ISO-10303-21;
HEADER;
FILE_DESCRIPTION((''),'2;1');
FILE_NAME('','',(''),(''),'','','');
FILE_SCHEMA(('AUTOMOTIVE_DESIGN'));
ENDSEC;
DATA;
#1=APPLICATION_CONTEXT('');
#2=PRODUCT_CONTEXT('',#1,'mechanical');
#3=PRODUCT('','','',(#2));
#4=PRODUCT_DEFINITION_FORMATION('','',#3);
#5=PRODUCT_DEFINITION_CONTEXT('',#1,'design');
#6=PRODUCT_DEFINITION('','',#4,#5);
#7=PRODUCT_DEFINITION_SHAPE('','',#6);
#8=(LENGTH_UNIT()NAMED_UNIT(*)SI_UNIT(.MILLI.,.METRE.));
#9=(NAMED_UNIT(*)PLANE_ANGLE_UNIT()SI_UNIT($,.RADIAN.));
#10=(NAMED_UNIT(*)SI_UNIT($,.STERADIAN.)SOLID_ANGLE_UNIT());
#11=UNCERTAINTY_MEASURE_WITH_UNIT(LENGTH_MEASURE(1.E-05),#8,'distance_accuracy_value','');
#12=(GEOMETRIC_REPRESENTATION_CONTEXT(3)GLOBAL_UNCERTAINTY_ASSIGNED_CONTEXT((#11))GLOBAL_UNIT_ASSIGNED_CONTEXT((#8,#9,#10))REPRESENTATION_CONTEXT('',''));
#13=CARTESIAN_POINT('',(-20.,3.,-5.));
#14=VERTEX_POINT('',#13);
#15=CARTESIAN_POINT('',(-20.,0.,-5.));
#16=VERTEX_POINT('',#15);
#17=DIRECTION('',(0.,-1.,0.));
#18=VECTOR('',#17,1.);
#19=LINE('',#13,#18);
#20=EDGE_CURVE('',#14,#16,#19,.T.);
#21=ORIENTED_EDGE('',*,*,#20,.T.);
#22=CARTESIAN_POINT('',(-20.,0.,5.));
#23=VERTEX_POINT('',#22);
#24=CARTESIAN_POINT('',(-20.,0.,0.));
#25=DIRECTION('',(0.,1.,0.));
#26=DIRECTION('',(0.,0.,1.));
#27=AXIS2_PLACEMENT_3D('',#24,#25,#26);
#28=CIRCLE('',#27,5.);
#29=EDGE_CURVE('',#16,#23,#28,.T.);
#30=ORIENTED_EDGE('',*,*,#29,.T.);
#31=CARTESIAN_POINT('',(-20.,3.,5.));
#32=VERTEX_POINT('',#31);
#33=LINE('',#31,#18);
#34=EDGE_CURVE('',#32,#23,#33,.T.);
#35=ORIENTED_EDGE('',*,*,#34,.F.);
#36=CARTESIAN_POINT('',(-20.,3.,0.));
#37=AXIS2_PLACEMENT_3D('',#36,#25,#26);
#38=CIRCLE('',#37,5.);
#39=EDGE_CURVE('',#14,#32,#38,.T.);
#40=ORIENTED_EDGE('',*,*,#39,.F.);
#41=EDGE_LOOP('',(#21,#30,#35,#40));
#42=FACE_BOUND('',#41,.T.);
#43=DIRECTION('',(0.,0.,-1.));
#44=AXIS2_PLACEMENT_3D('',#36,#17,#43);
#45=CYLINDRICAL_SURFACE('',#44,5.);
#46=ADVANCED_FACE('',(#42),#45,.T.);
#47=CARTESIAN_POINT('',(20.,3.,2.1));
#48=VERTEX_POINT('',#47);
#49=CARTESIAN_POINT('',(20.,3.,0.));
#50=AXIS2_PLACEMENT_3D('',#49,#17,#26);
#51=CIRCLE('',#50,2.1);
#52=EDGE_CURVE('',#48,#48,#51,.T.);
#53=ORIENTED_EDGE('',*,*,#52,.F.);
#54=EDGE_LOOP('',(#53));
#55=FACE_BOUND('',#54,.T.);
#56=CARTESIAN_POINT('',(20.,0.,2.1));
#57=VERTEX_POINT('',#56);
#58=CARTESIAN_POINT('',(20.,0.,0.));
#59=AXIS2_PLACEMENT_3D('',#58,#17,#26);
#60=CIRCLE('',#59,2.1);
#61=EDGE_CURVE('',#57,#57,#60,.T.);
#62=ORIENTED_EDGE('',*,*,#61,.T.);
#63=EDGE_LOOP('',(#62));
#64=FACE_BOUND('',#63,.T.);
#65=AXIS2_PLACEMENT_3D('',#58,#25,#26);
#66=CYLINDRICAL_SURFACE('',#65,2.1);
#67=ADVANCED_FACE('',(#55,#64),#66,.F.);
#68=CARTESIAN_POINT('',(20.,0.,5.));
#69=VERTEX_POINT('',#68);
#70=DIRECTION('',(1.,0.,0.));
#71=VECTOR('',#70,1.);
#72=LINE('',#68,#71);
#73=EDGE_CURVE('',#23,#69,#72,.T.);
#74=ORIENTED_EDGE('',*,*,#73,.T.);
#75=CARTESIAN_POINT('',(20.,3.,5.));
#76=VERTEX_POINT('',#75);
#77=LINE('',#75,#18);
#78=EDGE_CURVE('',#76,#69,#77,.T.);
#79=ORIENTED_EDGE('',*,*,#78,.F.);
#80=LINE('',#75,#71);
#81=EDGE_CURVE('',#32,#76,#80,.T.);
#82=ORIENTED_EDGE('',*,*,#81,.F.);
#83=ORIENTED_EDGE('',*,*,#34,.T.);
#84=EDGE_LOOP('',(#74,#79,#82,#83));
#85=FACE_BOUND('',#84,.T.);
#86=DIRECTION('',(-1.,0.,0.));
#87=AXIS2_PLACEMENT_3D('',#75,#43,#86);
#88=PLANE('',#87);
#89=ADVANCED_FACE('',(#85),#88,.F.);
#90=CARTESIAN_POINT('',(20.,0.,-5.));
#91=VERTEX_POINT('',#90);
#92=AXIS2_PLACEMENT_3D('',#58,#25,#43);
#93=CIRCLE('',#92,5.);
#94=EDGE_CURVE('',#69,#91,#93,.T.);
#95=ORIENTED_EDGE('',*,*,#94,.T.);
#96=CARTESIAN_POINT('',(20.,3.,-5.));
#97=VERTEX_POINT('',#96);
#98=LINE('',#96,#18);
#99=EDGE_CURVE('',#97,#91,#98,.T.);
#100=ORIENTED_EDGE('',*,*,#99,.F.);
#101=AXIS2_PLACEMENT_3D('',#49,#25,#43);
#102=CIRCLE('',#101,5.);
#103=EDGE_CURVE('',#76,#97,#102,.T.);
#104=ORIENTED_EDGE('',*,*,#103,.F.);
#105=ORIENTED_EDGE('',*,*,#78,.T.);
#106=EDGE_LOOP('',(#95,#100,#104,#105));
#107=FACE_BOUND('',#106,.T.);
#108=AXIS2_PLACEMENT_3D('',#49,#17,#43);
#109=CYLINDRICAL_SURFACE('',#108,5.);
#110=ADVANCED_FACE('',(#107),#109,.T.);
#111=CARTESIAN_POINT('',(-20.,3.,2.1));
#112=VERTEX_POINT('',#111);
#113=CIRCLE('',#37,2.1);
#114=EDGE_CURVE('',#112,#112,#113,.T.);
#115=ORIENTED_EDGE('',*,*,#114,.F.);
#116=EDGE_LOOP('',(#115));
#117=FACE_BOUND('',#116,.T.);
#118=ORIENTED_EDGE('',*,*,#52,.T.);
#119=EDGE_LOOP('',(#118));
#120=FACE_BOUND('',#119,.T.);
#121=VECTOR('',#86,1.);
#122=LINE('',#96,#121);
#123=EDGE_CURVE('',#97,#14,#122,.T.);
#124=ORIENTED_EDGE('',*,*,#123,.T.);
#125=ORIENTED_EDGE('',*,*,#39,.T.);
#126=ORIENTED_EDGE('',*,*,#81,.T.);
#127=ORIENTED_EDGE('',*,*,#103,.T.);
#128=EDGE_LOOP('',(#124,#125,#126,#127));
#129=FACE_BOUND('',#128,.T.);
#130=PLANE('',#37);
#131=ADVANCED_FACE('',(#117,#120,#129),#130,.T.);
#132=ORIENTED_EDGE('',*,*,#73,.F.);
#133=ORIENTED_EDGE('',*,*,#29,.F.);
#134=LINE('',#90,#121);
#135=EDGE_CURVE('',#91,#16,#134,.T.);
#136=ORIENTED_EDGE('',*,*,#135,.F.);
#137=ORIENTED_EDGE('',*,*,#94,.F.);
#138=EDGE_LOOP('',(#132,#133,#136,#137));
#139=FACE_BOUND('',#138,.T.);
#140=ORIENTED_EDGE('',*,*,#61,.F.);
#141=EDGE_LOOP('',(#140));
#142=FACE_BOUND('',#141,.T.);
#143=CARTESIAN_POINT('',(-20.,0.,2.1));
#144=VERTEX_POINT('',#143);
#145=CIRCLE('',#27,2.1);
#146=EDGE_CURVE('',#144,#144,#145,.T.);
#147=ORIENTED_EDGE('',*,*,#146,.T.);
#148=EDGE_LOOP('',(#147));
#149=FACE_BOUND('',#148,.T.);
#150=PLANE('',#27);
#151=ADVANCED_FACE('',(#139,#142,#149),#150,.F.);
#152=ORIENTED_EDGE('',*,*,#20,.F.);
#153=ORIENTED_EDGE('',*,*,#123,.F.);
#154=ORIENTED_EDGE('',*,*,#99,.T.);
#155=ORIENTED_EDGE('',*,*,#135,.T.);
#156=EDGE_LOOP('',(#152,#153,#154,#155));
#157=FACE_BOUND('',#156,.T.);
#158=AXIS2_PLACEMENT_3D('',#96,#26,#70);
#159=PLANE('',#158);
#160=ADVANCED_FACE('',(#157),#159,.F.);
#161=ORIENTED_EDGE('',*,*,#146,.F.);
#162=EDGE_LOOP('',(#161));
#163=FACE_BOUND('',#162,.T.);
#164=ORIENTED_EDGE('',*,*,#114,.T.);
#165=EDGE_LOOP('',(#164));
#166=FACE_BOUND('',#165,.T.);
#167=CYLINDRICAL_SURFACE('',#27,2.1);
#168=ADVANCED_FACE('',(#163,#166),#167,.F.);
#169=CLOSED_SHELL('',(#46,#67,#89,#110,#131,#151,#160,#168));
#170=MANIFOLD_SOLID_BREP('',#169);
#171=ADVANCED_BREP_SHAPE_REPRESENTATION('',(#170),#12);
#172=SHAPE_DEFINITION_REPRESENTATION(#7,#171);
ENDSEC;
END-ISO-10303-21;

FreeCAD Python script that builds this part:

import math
import FreeCAD as App
import Part
import Sketcher

doc = App.newDocument("Part")
body = doc.addObject("PartDesign::Body", "Body")

# Sketch on XZ plane
sketch1 = body.newObject("Sketcher::SketchObject", "Sketch")
sketch1.AttachmentSupport = (doc.getObject("XZ_Plane"), [""])
sketch1.MapMode = "FlatFace"
sketch1.addGeometry([
    Part.LineSegment(App.Vector(-20, 5, 0), App.Vector(20, 5, 0)),
    Part.ArcOfCircle(Part.Circle(App.Vector(20, 0, 0), App.Vector(0, 0, 1), 5), math.radians(-90), math.radians(90)),
    Part.LineSegment(App.Vector(20, -5, 0), App.Vector(-20, -5, 0)),
    Part.ArcOfCircle(Part.Circle(App.Vector(-20, 0, 0), App.Vector(0, 0, 1), 5), math.radians(90), math.radians(270)),
], False)
sketch1.addConstraint([
    Sketcher.Constraint("Tangent", 0, 2, 1, 2),
    Sketcher.Constraint("Tangent", 1, 1, 2, 1),
    Sketcher.Constraint("Tangent", 2, 2, 3, 2),
    Sketcher.Constraint("Tangent", 3, 1, 0, 1),
    Sketcher.Constraint("Horizontal", 0),
    Sketcher.Constraint("Horizontal", 2),
    Sketcher.Constraint("Symmetric", 1, 3, 3, 3, -1, 1),
    Sketcher.Constraint("Radius", 1, 5.0),
    Sketcher.Constraint("DistanceX", 0, 1, 0, 2, 40.0),
])
pad1 = body.newObject("PartDesign::Pad", "Pad")
pad1.Profile = sketch1
pad1.Length = 3
pad1.Reversed = True

# Sketch on XZ plane
sketch2 = body.newObject("Sketcher::SketchObject", "Sketch001")
sketch2.AttachmentSupport = (doc.getObject("XZ_Plane"), [""])
sketch2.MapMode = "FlatFace"
sketch2.AttachmentOffset = App.Placement(App.Vector(0, 0, -3), App.Rotation())
sketch2.addGeometry(Part.Circle(App.Vector(-20, 0, 0), App.Vector(0, 0, 1), 2.1), False)
sketch2.addConstraint([
    Sketcher.Constraint("PointOnObject", 0, 3, -1),
    Sketcher.Constraint("Diameter", 0, 4.2),
    Sketcher.Constraint("DistanceX", 0, 3, -1, 1, 20.0),
])
pocket1 = body.newObject("PartDesign::Pocket", "Pocket")
pocket1.Profile = sketch2
pocket1.Type = "ThroughAll"
pocket1.Reversed = True
doc.recompute()

mirrored = body.newObject("PartDesign::Mirrored", "Mirrored")
mirrored.Originals = [pocket1]
mirrored.MirrorPlane = (doc.getObject("YZ_Plane"), [""])
body.Tip = mirrored

doc.recompute()
